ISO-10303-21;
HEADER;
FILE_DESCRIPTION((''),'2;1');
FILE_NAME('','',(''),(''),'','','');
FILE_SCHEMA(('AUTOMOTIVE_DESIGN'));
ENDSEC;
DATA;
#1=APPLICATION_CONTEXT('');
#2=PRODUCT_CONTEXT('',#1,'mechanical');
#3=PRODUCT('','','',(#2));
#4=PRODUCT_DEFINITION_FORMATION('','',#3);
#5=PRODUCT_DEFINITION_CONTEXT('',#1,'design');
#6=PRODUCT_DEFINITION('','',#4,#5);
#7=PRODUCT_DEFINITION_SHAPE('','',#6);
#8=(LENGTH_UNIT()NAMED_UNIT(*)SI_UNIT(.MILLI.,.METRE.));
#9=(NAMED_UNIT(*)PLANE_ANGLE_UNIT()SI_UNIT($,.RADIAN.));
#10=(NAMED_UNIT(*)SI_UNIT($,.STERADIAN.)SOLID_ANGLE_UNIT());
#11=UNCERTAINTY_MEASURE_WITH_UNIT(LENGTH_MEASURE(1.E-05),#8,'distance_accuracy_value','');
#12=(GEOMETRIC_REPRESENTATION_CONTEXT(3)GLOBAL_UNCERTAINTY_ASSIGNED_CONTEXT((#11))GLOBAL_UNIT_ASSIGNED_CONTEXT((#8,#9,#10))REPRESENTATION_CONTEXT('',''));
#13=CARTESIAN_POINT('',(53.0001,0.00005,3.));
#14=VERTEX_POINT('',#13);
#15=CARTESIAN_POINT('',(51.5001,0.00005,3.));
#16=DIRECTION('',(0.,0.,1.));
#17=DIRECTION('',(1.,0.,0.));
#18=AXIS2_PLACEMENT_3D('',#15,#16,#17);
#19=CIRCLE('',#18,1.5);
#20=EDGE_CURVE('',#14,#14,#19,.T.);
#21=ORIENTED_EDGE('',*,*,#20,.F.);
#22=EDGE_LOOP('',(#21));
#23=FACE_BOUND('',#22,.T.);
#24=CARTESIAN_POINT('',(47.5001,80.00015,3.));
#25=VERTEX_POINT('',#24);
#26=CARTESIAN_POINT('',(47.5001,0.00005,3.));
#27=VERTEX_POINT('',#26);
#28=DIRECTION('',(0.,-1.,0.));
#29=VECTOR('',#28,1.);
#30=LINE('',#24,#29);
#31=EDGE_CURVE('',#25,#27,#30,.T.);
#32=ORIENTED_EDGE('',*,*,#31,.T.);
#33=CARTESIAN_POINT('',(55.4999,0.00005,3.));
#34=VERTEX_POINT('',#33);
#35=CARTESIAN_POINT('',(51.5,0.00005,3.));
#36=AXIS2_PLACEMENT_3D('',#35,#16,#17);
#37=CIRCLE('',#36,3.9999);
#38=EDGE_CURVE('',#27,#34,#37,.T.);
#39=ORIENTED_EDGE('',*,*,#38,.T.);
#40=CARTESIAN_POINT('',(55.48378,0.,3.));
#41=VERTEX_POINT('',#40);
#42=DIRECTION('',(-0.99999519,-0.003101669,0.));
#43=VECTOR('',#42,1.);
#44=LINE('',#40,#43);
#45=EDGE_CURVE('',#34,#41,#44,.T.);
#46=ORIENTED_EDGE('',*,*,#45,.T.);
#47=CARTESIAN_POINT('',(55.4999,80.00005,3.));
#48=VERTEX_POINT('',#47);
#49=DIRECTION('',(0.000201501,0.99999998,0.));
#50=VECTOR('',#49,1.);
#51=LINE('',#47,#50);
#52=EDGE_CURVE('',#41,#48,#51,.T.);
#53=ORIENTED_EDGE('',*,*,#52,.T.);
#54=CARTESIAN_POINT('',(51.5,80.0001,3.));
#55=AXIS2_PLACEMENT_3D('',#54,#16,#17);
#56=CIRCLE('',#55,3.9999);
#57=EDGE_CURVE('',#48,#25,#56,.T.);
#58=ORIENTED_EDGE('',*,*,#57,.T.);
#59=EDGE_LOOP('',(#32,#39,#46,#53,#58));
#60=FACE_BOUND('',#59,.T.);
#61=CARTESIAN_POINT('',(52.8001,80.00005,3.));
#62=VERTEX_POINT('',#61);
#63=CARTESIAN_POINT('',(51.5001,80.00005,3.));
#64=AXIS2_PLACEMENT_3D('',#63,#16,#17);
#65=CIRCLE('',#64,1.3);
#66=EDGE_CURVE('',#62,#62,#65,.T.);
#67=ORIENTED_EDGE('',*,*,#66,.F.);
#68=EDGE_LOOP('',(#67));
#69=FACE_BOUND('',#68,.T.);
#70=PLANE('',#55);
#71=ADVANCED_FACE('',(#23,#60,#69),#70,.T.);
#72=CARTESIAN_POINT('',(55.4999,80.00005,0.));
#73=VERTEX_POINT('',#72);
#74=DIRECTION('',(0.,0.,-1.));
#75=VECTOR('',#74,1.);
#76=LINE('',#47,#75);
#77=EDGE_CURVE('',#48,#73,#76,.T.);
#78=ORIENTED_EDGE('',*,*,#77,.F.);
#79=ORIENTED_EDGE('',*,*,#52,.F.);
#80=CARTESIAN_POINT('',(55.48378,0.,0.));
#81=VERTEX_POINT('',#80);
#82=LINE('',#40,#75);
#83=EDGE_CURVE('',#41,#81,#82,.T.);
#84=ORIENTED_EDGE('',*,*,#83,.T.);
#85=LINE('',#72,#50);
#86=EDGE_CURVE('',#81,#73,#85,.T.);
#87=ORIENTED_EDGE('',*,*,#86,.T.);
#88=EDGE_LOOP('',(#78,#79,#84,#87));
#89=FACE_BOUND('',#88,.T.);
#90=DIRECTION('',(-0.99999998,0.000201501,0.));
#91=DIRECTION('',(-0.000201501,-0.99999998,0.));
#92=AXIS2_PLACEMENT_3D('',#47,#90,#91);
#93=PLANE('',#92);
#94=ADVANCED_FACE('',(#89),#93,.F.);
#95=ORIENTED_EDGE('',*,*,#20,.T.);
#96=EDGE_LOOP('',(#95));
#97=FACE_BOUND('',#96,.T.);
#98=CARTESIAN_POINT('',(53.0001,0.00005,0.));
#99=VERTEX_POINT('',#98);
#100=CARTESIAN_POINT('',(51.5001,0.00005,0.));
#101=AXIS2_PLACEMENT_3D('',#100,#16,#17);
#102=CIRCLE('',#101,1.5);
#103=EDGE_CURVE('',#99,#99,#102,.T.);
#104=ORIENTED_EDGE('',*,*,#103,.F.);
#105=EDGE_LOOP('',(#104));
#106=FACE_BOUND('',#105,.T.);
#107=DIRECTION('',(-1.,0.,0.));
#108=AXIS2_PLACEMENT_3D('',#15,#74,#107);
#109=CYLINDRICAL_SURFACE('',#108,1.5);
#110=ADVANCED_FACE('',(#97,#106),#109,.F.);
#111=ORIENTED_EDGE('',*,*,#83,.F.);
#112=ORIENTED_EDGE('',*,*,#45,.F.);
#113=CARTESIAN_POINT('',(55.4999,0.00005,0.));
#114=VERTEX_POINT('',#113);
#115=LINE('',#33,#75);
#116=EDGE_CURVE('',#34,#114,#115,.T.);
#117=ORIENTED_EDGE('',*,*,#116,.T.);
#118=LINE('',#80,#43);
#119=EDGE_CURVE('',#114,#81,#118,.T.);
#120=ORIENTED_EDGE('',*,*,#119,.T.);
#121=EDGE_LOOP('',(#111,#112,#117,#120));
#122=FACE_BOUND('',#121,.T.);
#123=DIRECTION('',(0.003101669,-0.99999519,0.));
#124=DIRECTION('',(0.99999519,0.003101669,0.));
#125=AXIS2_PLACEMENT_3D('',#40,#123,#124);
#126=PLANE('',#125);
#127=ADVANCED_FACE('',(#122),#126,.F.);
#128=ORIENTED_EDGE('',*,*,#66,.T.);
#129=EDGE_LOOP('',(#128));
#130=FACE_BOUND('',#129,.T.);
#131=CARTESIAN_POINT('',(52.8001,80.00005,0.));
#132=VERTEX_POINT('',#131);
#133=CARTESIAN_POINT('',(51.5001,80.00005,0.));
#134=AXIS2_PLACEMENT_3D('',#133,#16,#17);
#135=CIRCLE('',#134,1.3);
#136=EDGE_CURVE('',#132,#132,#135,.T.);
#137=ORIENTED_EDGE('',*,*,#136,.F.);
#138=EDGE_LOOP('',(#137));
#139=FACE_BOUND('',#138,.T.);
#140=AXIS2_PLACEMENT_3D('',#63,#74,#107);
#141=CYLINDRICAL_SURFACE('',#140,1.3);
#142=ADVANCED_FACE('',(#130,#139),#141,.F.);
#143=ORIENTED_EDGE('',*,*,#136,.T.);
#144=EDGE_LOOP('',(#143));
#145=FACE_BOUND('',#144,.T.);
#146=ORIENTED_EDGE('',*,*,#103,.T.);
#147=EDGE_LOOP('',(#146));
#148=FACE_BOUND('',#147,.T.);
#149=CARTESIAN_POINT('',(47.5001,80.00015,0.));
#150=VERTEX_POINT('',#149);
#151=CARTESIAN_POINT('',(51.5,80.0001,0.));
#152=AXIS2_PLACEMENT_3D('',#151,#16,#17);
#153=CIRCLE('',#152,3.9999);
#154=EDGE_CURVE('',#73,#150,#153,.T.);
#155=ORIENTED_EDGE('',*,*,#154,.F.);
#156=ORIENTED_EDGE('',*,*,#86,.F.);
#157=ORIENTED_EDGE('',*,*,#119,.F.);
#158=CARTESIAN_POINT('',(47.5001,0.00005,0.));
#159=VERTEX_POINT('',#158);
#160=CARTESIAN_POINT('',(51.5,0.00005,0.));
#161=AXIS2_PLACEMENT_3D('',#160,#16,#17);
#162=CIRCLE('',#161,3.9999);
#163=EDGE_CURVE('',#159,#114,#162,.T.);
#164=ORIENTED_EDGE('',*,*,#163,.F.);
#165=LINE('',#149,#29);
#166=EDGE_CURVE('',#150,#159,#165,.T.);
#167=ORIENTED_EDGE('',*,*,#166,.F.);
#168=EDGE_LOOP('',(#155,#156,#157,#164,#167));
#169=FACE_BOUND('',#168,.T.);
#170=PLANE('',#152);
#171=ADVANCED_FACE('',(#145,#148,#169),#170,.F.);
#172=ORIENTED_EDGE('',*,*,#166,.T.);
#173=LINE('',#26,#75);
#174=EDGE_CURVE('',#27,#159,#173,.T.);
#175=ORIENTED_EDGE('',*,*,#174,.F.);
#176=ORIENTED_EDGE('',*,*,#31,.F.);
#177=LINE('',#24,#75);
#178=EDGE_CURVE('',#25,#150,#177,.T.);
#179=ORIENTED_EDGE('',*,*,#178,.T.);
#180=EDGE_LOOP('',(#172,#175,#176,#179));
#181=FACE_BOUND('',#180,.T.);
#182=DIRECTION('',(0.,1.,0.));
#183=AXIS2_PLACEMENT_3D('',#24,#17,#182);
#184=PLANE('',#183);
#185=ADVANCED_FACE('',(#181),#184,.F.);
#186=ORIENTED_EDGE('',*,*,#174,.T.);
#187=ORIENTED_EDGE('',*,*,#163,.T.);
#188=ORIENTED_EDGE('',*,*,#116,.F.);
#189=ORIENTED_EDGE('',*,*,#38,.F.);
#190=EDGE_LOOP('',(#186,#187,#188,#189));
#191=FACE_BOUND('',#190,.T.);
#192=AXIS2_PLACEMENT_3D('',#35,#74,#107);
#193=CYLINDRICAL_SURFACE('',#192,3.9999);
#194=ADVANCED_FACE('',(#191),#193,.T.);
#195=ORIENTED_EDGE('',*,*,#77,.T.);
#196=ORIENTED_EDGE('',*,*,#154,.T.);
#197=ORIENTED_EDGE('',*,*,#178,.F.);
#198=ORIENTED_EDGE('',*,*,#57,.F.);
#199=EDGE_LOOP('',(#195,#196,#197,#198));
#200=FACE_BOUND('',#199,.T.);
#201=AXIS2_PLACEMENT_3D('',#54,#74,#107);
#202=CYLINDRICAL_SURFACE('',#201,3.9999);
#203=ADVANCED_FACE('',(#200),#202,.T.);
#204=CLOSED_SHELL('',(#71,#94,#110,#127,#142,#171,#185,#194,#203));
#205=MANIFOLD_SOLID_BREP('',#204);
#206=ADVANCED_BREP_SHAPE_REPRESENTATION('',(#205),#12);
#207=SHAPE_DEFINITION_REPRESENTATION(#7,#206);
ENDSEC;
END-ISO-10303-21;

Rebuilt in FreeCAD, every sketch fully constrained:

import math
import FreeCAD as App
import Part
import Sketcher

V = App.Vector
Q = App.Units.Quantity

doc = App.newDocument("Part")
body = doc.addObject("PartDesign::Body", "Body")

# Sketch on XY plane
sketch1 = body.newObject("Sketcher::SketchObject", "Sketch")
sketch1.AttachmentSupport = (doc.getObject("XY_Plane"), [""])
sketch1.MapMode = "FlatFace"
sketch1.addGeometry([
    Part.LineSegment(V(47.5, 80, 0), V(47.5, 0, 0)),  # 0
    Part.ArcOfCircle(Part.Circle(V(51.5, 0, 0), V(0, 0, 1), 4), math.radians(-180), math.radians(0)),  # 1
    Part.LineSegment(V(55.5, 0, 0), V(55.484, 0, 0)),  # 2
    Part.LineSegment(V(55.484, 0, 0), V(55.5, 80, 0)),  # 3
    Part.ArcOfCircle(Part.Circle(V(51.5, 80, 0), V(0, 0, 1), 4), math.radians(0), math.radians(180)),  # 4
    Part.Circle(V(51.5, 0, 0), V(0, 0, 1), 1.5),  # 5
    Part.Circle(V(51.5, 80, 0), V(0, 0, 1), 1.3),  # 6
], False)
sketch1.addConstraint([
    Sketcher.Constraint("Tangent", 0, 2, 1, 1),
    Sketcher.Constraint("Coincident", 1, 2, 2, 1),
    Sketcher.Constraint("Coincident", 2, 2, 3, 1),
    Sketcher.Constraint("Coincident", 3, 2, 4, 1),
    Sketcher.Constraint("Coincident", 4, 2, 0, 1),
    Sketcher.Constraint("Vertical", 0),
    Sketcher.Constraint("Equal", 1, 4),
    Sketcher.Constraint("PointOnObject", 2, 2, -1),
    Sketcher.Constraint("Horizontal", 1, 3, 5, 3),
    Sketcher.Constraint("Horizontal", 0, 2, 1, 2),
    Sketcher.Constraint("Horizontal", 6, 3, 3, 2),
    Sketcher.Constraint("Vertical", 5, 3, 6, 3),
    Sketcher.Constraint("Diameter", 5, Q("3 mm")),
    Sketcher.Constraint("Diameter", 6, Q("2.6 mm")),
    Sketcher.Constraint("DistanceY", 1, 3, 6, 3, Q("80 mm")),
    Sketcher.Constraint("DistanceX", 0, 2, 5, 3, Q("4 mm")),
    Sketcher.Constraint("DistanceX", -1, 1, 1, 3, Q("51.5 mm")),
    Sketcher.Constraint("Radius", 1, Q("3.9999 mm")),
    Sketcher.Constraint("DistanceY", 0, 2, 0, 1, Q("80.0001 mm")),
    Sketcher.Constraint("DistanceY", -1, 1, 4, 3, Q("80.0001 mm")),
    Sketcher.Constraint("Distance", 2, Q("0.01612 mm")),
    Sketcher.Constraint("Distance", 3, Q("80.000052 mm")),
])
pad1 = body.newObject("PartDesign::Pad", "Pad")
pad1.Profile = sketch1
pad1.Length = 3

doc.recompute()
